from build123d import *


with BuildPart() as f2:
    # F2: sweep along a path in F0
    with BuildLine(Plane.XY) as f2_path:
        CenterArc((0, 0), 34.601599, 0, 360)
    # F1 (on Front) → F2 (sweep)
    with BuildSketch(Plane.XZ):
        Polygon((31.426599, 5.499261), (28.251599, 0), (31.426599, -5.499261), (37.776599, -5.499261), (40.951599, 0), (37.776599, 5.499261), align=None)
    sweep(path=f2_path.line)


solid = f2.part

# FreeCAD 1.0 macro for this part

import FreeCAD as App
import Part
import Sketcher
from FreeCAD import Vector
Q = App.Units.Quantity

doc = App.newDocument("Part")
body = doc.addObject("PartDesign::Body", "Body")

sketch1 = body.newObject("Sketcher::SketchObject", "Sketch")
sketch1.AttachmentSupport = (doc.getObject("XZ_Plane"), [""])
sketch1.MapMode = "FlatFace"
sketch1.addGeometry(Part.LineSegment(Vector(31, 5, 0), Vector(28, 0, 0)), False)
sketch1.addGeometry(Part.LineSegment(Vector(28, 0, 0), Vector(31, -5, 0)), False)
sketch1.addGeometry(Part.LineSegment(Vector(31, -5, 0), Vector(38, -5, 0)), False)
sketch1.addGeometry(Part.LineSegment(Vector(38, -5, 0), Vector(41, 0, 0)), False)
sketch1.addGeometry(Part.LineSegment(Vector(41, 0, 0), Vector(38, 5, 0)), False)
sketch1.addGeometry(Part.LineSegment(Vector(38, 5, 0), Vector(31, 5, 0)), False)
sketch1.addConstraint(Sketcher.Constraint("Coincident", 0, 2, 1, 1))
sketch1.addConstraint(Sketcher.Constraint("Coincident", 1, 2, 2, 1))
sketch1.addConstraint(Sketcher.Constraint("Coincident", 2, 2, 3, 1))
sketch1.addConstraint(Sketcher.Constraint("Coincident", 3, 2, 4, 1))
sketch1.addConstraint(Sketcher.Constraint("Coincident", 4, 2, 5, 1))
sketch1.addConstraint(Sketcher.Constraint("Coincident", 5, 2, 0, 1))
sketch1.addConstraint(Sketcher.Constraint("Horizontal", 2))
sketch1.addConstraint(Sketcher.Constraint("Horizontal", 5))
sketch1.addConstraint(Sketcher.Constraint("Symmetric", 2, 2, 4, 2, -1))
sketch1.addConstraint(Sketcher.Constraint("PointOnObject", 0, 2, -1))
sketch1.addConstraint(Sketcher.Constraint("PointOnObject", 3, 2, -1))
sketch1.addConstraint(Sketcher.Constraint("Parallel", 0, 3))
sketch1.addConstraint(Sketcher.Constraint("Parallel", 1, 4))
sketch1.addConstraint(Sketcher.Constraint("Angle", 0, Q("-120.000001 deg")))
sketch1.addConstraint(Sketcher.Constraint("DistanceX", 2, 1, 2, 2, Q("0.25 in")))
sketch1.addConstraint(Sketcher.Constraint("DistanceX", 0, 2, 3, 2, Q("0.5 in")))
sketch1.addConstraint(Sketcher.Constraint("DistanceX", -1, 1, 0, 2, 28.251599))

sketch2 = body.newObject("Sketcher::SketchObject", "Sketch001")
sketch2.AttachmentSupport = (doc.getObject("XY_Plane"), [""])
sketch2.MapMode = "FlatFace"
sketch2.addGeometry(Part.Circle(Vector(0, 0, 0), Vector(0, 0, 1), 35), False)
sketch2.addConstraint(Sketcher.Constraint("Coincident", 0, 3, -1, 1))
sketch2.addConstraint(Sketcher.Constraint("Diameter", 0, 69.203198))
doc.recompute()

additivepipe = body.newObject("PartDesign::AdditivePipe", "AdditivePipe")
additivepipe.Profile = sketch1
additivepipe.Spine = (sketch2, ["Edge1"])

doc.recompute()
